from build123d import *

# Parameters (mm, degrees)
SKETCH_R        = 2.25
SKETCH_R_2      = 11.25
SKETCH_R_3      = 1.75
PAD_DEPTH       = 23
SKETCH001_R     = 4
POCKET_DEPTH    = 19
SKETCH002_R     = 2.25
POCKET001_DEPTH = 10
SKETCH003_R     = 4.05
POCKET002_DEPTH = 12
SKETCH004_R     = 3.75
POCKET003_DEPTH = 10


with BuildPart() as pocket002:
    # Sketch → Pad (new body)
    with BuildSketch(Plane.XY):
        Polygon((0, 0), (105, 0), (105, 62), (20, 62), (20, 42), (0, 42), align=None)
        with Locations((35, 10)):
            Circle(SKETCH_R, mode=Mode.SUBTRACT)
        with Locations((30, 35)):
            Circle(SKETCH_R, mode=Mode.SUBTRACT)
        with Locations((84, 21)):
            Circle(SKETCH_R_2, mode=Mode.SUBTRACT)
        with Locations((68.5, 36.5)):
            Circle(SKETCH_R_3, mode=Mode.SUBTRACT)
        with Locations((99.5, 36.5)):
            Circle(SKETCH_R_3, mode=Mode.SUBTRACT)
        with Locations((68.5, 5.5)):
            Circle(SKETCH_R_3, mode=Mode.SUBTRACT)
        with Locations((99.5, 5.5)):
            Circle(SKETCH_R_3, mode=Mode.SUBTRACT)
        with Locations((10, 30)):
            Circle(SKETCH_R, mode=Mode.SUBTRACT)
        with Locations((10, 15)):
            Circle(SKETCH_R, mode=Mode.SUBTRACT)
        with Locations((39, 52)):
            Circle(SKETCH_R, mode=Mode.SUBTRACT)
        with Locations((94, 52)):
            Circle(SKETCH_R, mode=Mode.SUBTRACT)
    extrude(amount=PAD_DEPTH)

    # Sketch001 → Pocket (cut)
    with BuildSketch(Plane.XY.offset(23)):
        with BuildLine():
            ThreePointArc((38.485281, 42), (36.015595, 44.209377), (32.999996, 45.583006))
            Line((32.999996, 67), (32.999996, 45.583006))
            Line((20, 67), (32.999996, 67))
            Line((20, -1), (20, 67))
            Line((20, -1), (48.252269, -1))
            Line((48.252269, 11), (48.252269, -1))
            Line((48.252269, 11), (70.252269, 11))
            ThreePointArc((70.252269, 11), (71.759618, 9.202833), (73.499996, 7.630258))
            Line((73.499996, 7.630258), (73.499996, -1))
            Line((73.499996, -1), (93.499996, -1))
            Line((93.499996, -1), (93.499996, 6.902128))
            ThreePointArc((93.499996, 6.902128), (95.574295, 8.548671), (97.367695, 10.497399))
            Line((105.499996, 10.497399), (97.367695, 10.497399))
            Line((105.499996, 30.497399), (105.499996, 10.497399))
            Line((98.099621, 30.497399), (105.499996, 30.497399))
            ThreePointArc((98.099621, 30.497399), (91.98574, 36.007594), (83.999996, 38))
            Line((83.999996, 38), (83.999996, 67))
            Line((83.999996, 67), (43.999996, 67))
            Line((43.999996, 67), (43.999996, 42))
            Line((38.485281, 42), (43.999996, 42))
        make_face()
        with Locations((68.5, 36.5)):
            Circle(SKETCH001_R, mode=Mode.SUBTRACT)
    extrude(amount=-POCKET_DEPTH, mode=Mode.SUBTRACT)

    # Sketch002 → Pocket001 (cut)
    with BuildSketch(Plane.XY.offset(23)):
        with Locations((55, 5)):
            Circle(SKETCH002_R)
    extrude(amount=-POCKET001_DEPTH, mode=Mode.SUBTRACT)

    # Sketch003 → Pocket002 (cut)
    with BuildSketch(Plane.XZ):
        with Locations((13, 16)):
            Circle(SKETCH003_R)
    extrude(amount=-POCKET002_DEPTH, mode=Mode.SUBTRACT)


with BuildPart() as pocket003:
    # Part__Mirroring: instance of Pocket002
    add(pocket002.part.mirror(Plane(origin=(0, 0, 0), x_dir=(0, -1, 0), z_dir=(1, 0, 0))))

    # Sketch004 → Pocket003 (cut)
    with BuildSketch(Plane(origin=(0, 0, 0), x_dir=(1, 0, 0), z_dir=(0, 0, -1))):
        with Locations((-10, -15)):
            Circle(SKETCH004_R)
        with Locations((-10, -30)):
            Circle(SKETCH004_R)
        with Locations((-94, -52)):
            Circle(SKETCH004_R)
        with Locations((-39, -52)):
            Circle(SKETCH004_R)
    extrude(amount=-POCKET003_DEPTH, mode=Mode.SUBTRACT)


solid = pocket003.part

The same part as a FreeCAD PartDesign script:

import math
import FreeCAD as App
import Part
import Sketcher
from FreeCAD import Vector
Q = App.Units.Quantity


def add_polygon(sketch, points):
    """Adds a closed chain of lines whose ends are joined by coincident constraints."""
    first, n = sketch.GeometryCount, len(points)
    for a, b in zip(points, points[1:] + points[:1]):
        sketch.addGeometry(Part.LineSegment(App.Vector(*a, 0), App.Vector(*b, 0)), False)
    for i in range(n):
        sketch.addConstraint(Sketcher.Constraint("Coincident", first + i, 2, first + (i + 1) % n, 1))

doc = App.newDocument("Part")
body = doc.addObject("PartDesign::Body", "Body")

# Sketch on XY plane
sketch1 = body.newObject("Sketcher::SketchObject", "Sketch")
sketch1.AttachmentSupport = (doc.getObject("XY_Plane"), [""])
sketch1.MapMode = "FlatFace"
add_polygon(sketch1, [(0, 0), (105, 0), (105, 62), (20, 62), (20, 42), (0, 42)])  # lines 0-5
sketch1.addGeometry(Part.Circle(Vector(10, 15, 0), Vector(0, 0, 1), 2.2), False)  # 6
sketch1.addGeometry(Part.Circle(Vector(35, 10, 0), Vector(0, 0, 1), 2.2), False)  # 7
sketch1.addGeometry(Part.Circle(Vector(68.5, 5.5, 0), Vector(0, 0, 1), 1.8), False)  # 8
sketch1.addGeometry(Part.Circle(Vector(99.5, 5.5, 0), Vector(0, 0, 1), 1.8), False)  # 9
sketch1.addGeometry(Part.Circle(Vector(84, 21, 0), Vector(0, 0, 1), 11.2), False)  # 10
sketch1.addGeometry(Part.Circle(Vector(10, 30, 0), Vector(0, 0, 1), 2.2), False)  # 11
sketch1.addGeometry(Part.Circle(Vector(30, 35, 0), Vector(0, 0, 1), 2.2), False)  # 12
sketch1.addGeometry(Part.Circle(Vector(39, 52, 0), Vector(0, 0, 1), 2.2), False)  # 13
sketch1.addGeometry(Part.Circle(Vector(68.5, 36.5, 0), Vector(0, 0, 1), 1.8), False)  # 14
sketch1.addGeometry(Part.Circle(Vector(99.5, 36.5, 0), Vector(0, 0, 1), 1.8), False)  # 15
sketch1.addGeometry(Part.Circle(Vector(94, 52, 0), Vector(0, 0, 1), 2.2), False)  # 16
sketch1.addConstraint([
    Sketcher.Constraint("Horizontal", 0),
    Sketcher.Constraint("Vertical", 1),
    Sketcher.Constraint("Horizontal", 2),
    Sketcher.Constraint("Vertical", 3),
    Sketcher.Constraint("Horizontal", 4),
    Sketcher.Constraint("Vertical", 5),
    Sketcher.Constraint("Coincident", 5, 2, -1, 1),
    Sketcher.Constraint("Equal", 6, 7),
    Sketcher.Constraint("Equal", 8, 9),
    Sketcher.Constraint("Equal", 7, 11),
    Sketcher.Constraint("Equal", 11, 12),
    Sketcher.Constraint("Equal", 12, 13),
    Sketcher.Constraint("Equal", 9, 14),
    Sketcher.Constraint("Equal", 14, 15),
    Sketcher.Constraint("Equal", 13, 16),
    Sketcher.Constraint("Horizontal", 8, 3, 9, 3),
    Sketcher.Constraint("Horizontal", 14, 3, 15, 3),
    Sketcher.Constraint("Horizontal", 13, 3, 16, 3),
    Sketcher.Constraint("Vertical", 6, 3, 11, 3),
    Sketcher.Constraint("Vertical", 8, 3, 14, 3),
    Sketcher.Constraint("Vertical", 9, 3, 15, 3),
    Sketcher.Constraint("Equal", 4, 3),
    Sketcher.Constraint("Diameter", 6, Q("4.5 mm")),
    Sketcher.Constraint("Diameter", 8, Q("3.5 mm")),
    Sketcher.Constraint("Diameter", 10, Q("22.5 mm")),
    Sketcher.Constraint("DistanceX", 0, 1, 0, 2, Q("105 mm")),
    Sketcher.Constraint("DistanceX", 2, 2, 2, 1, Q("85 mm")),
    Sketcher.Constraint("DistanceY", 1, 1, 1, 2, Q("62 mm")),
    Sketcher.Constraint("DistanceX", -1, 1, 6, 3, Q("10 mm")),
    Sketcher.Constraint("DistanceY", -1, 1, 6, 3, Q("15 mm")),
    Sketcher.Constraint("DistanceX", -1, 1, 7, 3, Q("35 mm")),
    Sketcher.Constraint("DistanceY", -1, 1, 7, 3, Q("10 mm")),
    Sketcher.Constraint("DistanceX", -1, 1, 10, 3, Q("84 mm")),
    Sketcher.Constraint("DistanceY", -1, 1, 10, 3, Q("21 mm")),
    Sketcher.Constraint("DistanceY", -1, 1, 11, 3, Q("30 mm")),
    Sketcher.Constraint("DistanceX", -1, 1, 12, 3, Q("30 mm")),
    Sketcher.Constraint("DistanceY", -1, 1, 12, 3, Q("35 mm")),
    Sketcher.Constraint("DistanceX", -1, 1, 13, 3, Q("39 mm")),
    Sketcher.Constraint("DistanceY", -1, 1, 13, 3, Q("52 mm")),
    Sketcher.Constraint("DistanceX", -1, 1, 16, 3, Q("94 mm")),
    Sketcher.Constraint("DistanceX", 8, 3, 9, 3, Q("31 mm")),
    Sketcher.Constraint("DistanceY", 8, 3, 14, 3, Q("31 mm")),
    Sketcher.Constraint("DistanceX", -1, 1, 8, 3, Q("68.5 mm")),
    Sketcher.Constraint("DistanceY", -1, 1, 8, 3, Q("5.5 mm")),
])
pad1 = body.newObject("PartDesign::Pad", "Pad")
pad1.Profile = sketch1
pad1.Length = 23

# Sketch on XY plane
sketch2 = body.newObject("Sketcher::SketchObject", "Sketch001")
sketch2.AttachmentSupport = (doc.getObject("XY_Plane"), [""])
sketch2.MapMode = "FlatFace"
sketch2.AttachmentOffset = App.Placement(Vector(0, 0, 23), App.Rotation())
sketch2.addGeometry([
    Part.ArcOfCircle(Part.Circle(Vector(30, 35, 0), Vector(0, 0, 1), 11), math.radians(40), math.radians(74)),  # 0
    Part.LineSegment(Vector(33, 45.6, 0), Vector(33, 67, 0)),  # 1
    Part.LineSegment(Vector(33, 67, 0), Vector(20, 67, 0)),  # 2
    Part.LineSegment(Vector(20, 67, 0), Vector(20, -1, 0)),  # 3
    Part.LineSegment(Vector(20, -1, 0), Vector(48.3, -1, 0)),  # 4
    Part.LineSegment(Vector(48.3, -1, 0), Vector(48.3, 11, 0)),  # 5
    Part.LineSegment(Vector(48.3, 11, 0), Vector(70.3, 11, 0)),  # 6
    Part.ArcOfCircle(Part.Circle(Vector(84, 21, 0), Vector(0, 0, 1), 17), math.radians(-143.97), math.radians(-128.14)),  # 7
    Part.LineSegment(Vector(73.5, 7.6, 0), Vector(73.5, -1, 0)),  # 8
    Part.LineSegment(Vector(73.5, -1, 0), Vector(93.5, -1, 0)),  # 9
    Part.LineSegment(Vector(93.5, -1, 0), Vector(93.5, 6.9, 0)),  # 10
    Part.ArcOfCircle(Part.Circle(Vector(84, 21, 0), Vector(0, 0, 1), 17), math.radians(-56.03), math.radians(-38.16)),  # 11
    Part.LineSegment(Vector(97.4, 10.5, 0), Vector(105.5, 10.5, 0)),  # 12
    Part.LineSegment(Vector(105.5, 10.5, 0), Vector(105.5, 30.5, 0)),  # 13
    Part.LineSegment(Vector(105.5, 30.5, 0), Vector(98.1, 30.5, 0)),  # 14
    Part.ArcOfCircle(Part.Circle(Vector(84, 21, 0), Vector(0, 0, 1), 17), math.radians(34), math.radians(90)),  # 15
    Part.LineSegment(Vector(84, 38, 0), Vector(84, 67, 0)),  # 16
    Part.LineSegment(Vector(84, 67, 0), Vector(44, 67, 0)),  # 17
    Part.LineSegment(Vector(44, 67, 0), Vector(44, 42, 0)),  # 18
    Part.LineSegment(Vector(44, 42, 0), Vector(38.5, 42, 0)),  # 19
    Part.Circle(Vector(68.5, 36.5, 0), Vector(0, 0, 1), 4),  # 20
], False)
sketch2.addConstraint([
    Sketcher.Constraint("Coincident", 0, 2, 1, 1),
    Sketcher.Constraint("Coincident", 1, 2, 2, 1),
    Sketcher.Constraint("Coincident", 2, 2, 3, 1),
    Sketcher.Constraint("Coincident", 3, 2, 4, 1),
    Sketcher.Constraint("Coincident", 4, 2, 5, 1),
    Sketcher.Constraint("Coincident", 5, 2, 6, 1),
    Sketcher.Constraint("Coincident", 6, 2, 7, 1),
    Sketcher.Constraint("Coincident", 7, 2, 8, 1),
    Sketcher.Constraint("Coincident", 8, 2, 9, 1),
    Sketcher.Constraint("Coincident", 9, 2, 10, 1),
    Sketcher.Constraint("Coincident", 10, 2, 11, 1),
    Sketcher.Constraint("Coincident", 11, 2, 12, 1),
    Sketcher.Constraint("Coincident", 12, 2, 13, 1),
    Sketcher.Constraint("Coincident", 13, 2, 14, 1),
    Sketcher.Constraint("Coincident", 14, 2, 15, 1),
    Sketcher.Constraint("Coincident", 15, 2, 16, 1),
    Sketcher.Constraint("Coincident", 16, 2, 17, 1),
    Sketcher.Constraint("Coincident", 17, 2, 18, 1),
    Sketcher.Constraint("Coincident", 18, 2, 19, 1),
    Sketcher.Constraint("Coincident", 19, 2, 0, 1),
    Sketcher.Constraint("Vertical", 1),
    Sketcher.Constraint("Horizontal", 2),
    Sketcher.Constraint("Vertical", 3),
    Sketcher.Constraint("Horizontal", 4),
    Sketcher.Constraint("Vertical", 5),
    Sketcher.Constraint("Horizontal", 6),
    Sketcher.Constraint("Vertical", 8),
    Sketcher.Constraint("Horizontal", 9),
    Sketcher.Constraint("Vertical", 10),
    Sketcher.Constraint("Horizontal", 12),
    Sketcher.Constraint("Vertical", 13),
    Sketcher.Constraint("Horizontal", 14),
    Sketcher.Constraint("Vertical", 16),
    Sketcher.Constraint("Horizontal", 17),
    Sketcher.Constraint("Vertical", 18),
    Sketcher.Constraint("Horizontal", 19),
    Sketcher.Constraint("Coincident", 15, 3, 7, 3),
    Sketcher.Constraint("Horizontal", 4, 2, 8, 2),
    Sketcher.Constraint("Horizontal", 2, 2, 16, 2),
    Sketcher.Constraint("Equal", 9, 13),
    Sketcher.Constraint("Diameter", 20, Q("8 mm")),
    Sketcher.Constraint("DistanceX", 6, 1, 6, 2, Q("22 mm")),
    Sketcher.Constraint("DistanceX", 9, 1, 9, 2, Q("20 mm")),
    Sketcher.Constraint("DistanceX", 17, 2, 17, 1, Q("40 mm")),
    Sketcher.Constraint("DistanceY", 3, 2, 3, 1, Q("68 mm")),
    Sketcher.Constraint("DistanceY", 5, 1, 5, 2, Q("12 mm")),
    Sketcher.Constraint("DistanceY", 16, 1, 16, 2, Q("29 mm")),
    Sketcher.Constraint("DistanceY", 18, 2, 18, 1, Q("25 mm")),
    Sketcher.Constraint("DistanceY", -1, 1, 1, 2, Q("67 mm")),
    Sketcher.Constraint("DistanceX", -1, 1, 2, 2, Q("20 mm")),
    Sketcher.Constraint("DistanceX", 10, 2, 12, 2, Q("12 mm")),
    Sketcher.Constraint("DistanceX", 1, 2, 17, 2, Q("11 mm")),
    Sketcher.Constraint("DistanceX", -1, 1, 20, 3, Q("68.5 mm")),
    Sketcher.Constraint("DistanceY", -1, 1, 20, 3, Q("36.5 mm")),
    Sketcher.Constraint("DistanceX", 16, 2, 13, 2, Q("21.5 mm")),
    Sketcher.Constraint("Radius", 7, Q("16.99999 mm")),
    Sketcher.Constraint("Radius", 11, Q("17.00002 mm")),
    Sketcher.Constraint("DistanceX", 12, 1, 12, 2, Q("8.132301 mm")),
    Sketcher.Constraint("Radius", 0, Q("10.999985 mm")),
    Sketcher.Constraint("Radius", 15, Q("17.000005 mm")),
    Sketcher.Constraint("DistanceX", 4, 1, 4, 2, Q("28.252269 mm")),
    Sketcher.Constraint("DistanceY", 8, 2, 8, 1, Q("8.630258 mm")),
    Sketcher.Constraint("DistanceY", 10, 1, 10, 2, Q("7.902128 mm")),
    Sketcher.Constraint("DistanceY", -1, 1, 11, 2, Q("10.497399 mm")),
    Sketcher.Constraint("DistanceX", 19, 2, 19, 1, Q("5.514715 mm")),
    Sketcher.Constraint("DistanceY", 1, 1, 1, 2, Q("21.416994 mm")),
])
pocket1 = body.newObject("PartDesign::Pocket", "Pocket")
pocket1.Profile = sketch2
pocket1.Length = 19

# Sketch on XY plane
sketch3 = body.newObject("Sketcher::SketchObject", "Sketch002")
sketch3.AttachmentSupport = (doc.getObject("XY_Plane"), [""])
sketch3.MapMode = "FlatFace"
sketch3.AttachmentOffset = App.Placement(Vector(0, 0, 23), App.Rotation())
sketch3.addGeometry(Part.Circle(Vector(55, 5, 0), Vector(0, 0, 1), 2.2), False)
sketch3.addConstraint([
    Sketcher.Constraint("Diameter", 0, Q("4.5 mm")),
    Sketcher.Constraint("DistanceX", -1, 1, 0, 3, Q("55 mm")),
    Sketcher.Constraint("DistanceY", -1, 1, 0, 3, Q("5 mm")),
])
pocket2 = body.newObject("PartDesign::Pocket", "Pocket001")
pocket2.Profile = sketch3
pocket2.Length = 10

# Sketch on XZ plane
sketch4 = body.newObject("Sketcher::SketchObject", "Sketch003")
sketch4.AttachmentSupport = (doc.getObject("XZ_Plane"), [""])
sketch4.MapMode = "FlatFace"
sketch4.addGeometry(Part.Circle(Vector(13, 16, 0), Vector(0, 0, 1), 4), False)
sketch4.addConstraint([
    Sketcher.Constraint("Diameter", 0, Q("8.1 mm")),
    Sketcher.Constraint("DistanceX", -1, 1, 0, 3, Q("13 mm")),
    Sketcher.Constraint("DistanceY", -1, 1, 0, 3, Q("16 mm")),
])
pocket3 = body.newObject("PartDesign::Pocket", "Pocket002")
pocket3.Profile = sketch4
pocket3.Length = 12
body2 = doc.addObject("PartDesign::Body", "Body001")
doc.recompute()

mirroring = doc.addObject("Part::Mirroring", "Mirroring")
mirroring.Source = body
mirroring.Base = Vector(0, 0, 0)
mirroring.Normal = Vector(1, 0, 0)
body2.BaseFeature = mirroring
doc.recompute()

# Sketch on XY plane
sketch5 = body2.newObject("Sketcher::SketchObject", "Sketch004")
sketch5.AttachmentSupport = (doc.getObject("XY_Plane001"), [""])
sketch5.MapMode = "FlatFace"
sketch5.addGeometry([
    Part.Circle(Vector(-10, 15, 0), Vector(0, 0, 1), 3.8),
    Part.Circle(Vector(-10, 30, 0), Vector(0, 0, 1), 3.8),
    Part.Circle(Vector(-94, 52, 0), Vector(0, 0, 1), 3.8),
    Part.Circle(Vector(-39, 52, 0), Vector(0, 0, 1), 3.8),
], False)
sketch5.addConstraint([
    Sketcher.Constraint("Equal", 0, 1),
    Sketcher.Constraint("Equal", 1, 2),
    Sketcher.Constraint("Equal", 2, 3),
    Sketcher.Constraint("Horizontal", 2, 3, 3, 3),
    Sketcher.Constraint("Vertical", 0, 3, 1, 3),
    Sketcher.Constraint("Diameter", 0, Q("7.5 mm")),
    Sketcher.Constraint("DistanceX", 0, 3, -1, 1, Q("10 mm")),
    Sketcher.Constraint("DistanceY", -1, 1, 0, 3, Q("15 mm")),
    Sketcher.Constraint("DistanceY", -1, 1, 1, 3, Q("30 mm")),
    Sketcher.Constraint("DistanceX", 2, 3, -1, 1, Q("94 mm")),
    Sketcher.Constraint("DistanceY", -1, 1, 2, 3, Q("52 mm")),
    Sketcher.Constraint("DistanceX", 3, 3, -1, 1, Q("39 mm")),
])
pocket4 = body2.newObject("PartDesign::Pocket", "Pocket003")
pocket4.Profile = sketch5
pocket4.Length = 10
pocket4.Reversed = True
body.Visibility = False
mirroring.Visibility = False

doc.recompute()
